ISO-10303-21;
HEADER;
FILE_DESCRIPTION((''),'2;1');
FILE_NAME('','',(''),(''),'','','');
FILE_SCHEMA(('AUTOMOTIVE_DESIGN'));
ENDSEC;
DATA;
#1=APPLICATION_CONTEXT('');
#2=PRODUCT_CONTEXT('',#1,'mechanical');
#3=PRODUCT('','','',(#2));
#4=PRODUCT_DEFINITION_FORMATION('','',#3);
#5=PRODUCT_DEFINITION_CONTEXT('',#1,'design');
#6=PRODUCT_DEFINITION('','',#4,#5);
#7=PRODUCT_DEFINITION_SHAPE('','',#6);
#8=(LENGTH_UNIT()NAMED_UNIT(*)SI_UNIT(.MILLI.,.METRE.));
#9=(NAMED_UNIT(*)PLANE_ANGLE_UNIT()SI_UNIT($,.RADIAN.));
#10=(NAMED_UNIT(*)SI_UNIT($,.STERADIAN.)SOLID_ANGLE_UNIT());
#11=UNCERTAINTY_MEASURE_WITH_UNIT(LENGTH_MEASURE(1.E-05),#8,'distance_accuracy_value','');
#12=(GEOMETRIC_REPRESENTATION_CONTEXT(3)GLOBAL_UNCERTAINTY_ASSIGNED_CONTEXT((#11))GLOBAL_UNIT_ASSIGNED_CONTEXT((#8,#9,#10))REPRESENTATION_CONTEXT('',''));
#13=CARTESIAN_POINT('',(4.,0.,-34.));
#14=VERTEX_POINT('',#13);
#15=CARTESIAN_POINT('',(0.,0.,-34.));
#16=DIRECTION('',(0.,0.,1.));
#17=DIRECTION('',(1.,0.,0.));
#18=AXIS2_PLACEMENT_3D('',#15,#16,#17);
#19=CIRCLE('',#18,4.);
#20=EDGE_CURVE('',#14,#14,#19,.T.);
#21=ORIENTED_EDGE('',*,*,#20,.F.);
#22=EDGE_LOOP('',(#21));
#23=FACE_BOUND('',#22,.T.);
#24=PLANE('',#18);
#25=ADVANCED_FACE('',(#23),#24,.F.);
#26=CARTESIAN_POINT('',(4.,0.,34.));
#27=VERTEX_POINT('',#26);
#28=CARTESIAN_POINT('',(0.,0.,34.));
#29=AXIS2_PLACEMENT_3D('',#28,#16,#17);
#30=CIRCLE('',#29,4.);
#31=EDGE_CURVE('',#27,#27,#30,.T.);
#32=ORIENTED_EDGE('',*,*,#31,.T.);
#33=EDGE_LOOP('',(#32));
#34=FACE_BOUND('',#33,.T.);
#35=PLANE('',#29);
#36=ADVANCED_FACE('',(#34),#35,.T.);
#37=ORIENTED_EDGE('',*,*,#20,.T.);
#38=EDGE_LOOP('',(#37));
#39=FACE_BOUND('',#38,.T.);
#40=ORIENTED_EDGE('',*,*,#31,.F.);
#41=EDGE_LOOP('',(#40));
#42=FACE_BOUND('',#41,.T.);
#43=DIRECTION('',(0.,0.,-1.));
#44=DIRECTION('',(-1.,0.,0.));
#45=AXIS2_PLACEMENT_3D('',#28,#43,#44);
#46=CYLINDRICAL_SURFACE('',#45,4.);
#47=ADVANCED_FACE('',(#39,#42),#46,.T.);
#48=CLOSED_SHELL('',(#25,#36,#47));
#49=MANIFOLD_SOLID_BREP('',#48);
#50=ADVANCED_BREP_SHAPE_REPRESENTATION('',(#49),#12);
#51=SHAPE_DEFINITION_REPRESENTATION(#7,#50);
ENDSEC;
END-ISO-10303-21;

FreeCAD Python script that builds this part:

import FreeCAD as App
import Part
import Sketcher
from FreeCAD import Vector

doc = App.newDocument("Part")
body = doc.addObject("PartDesign::Body", "Body")

sketch1 = body.newObject("Sketcher::SketchObject", "Sketch")
sketch1.AttachmentSupport = (doc.getObject("XY_Plane"), [""])
sketch1.MapMode = "FlatFace"
sketch1.addGeometry(Part.Circle(Vector(0, 0, 0), Vector(0, 0, 1), 4), False)
sketch1.addConstraint(Sketcher.Constraint("Coincident", 0, 3, -1, 1))
sketch1.addConstraint(Sketcher.Constraint("Diameter", 0, 8.0))
pad1 = body.newObject("PartDesign::Pad", "Pad")
pad1.Profile = sketch1
pad1.Length = 68
pad1.Midplane = True

doc.recompute()
